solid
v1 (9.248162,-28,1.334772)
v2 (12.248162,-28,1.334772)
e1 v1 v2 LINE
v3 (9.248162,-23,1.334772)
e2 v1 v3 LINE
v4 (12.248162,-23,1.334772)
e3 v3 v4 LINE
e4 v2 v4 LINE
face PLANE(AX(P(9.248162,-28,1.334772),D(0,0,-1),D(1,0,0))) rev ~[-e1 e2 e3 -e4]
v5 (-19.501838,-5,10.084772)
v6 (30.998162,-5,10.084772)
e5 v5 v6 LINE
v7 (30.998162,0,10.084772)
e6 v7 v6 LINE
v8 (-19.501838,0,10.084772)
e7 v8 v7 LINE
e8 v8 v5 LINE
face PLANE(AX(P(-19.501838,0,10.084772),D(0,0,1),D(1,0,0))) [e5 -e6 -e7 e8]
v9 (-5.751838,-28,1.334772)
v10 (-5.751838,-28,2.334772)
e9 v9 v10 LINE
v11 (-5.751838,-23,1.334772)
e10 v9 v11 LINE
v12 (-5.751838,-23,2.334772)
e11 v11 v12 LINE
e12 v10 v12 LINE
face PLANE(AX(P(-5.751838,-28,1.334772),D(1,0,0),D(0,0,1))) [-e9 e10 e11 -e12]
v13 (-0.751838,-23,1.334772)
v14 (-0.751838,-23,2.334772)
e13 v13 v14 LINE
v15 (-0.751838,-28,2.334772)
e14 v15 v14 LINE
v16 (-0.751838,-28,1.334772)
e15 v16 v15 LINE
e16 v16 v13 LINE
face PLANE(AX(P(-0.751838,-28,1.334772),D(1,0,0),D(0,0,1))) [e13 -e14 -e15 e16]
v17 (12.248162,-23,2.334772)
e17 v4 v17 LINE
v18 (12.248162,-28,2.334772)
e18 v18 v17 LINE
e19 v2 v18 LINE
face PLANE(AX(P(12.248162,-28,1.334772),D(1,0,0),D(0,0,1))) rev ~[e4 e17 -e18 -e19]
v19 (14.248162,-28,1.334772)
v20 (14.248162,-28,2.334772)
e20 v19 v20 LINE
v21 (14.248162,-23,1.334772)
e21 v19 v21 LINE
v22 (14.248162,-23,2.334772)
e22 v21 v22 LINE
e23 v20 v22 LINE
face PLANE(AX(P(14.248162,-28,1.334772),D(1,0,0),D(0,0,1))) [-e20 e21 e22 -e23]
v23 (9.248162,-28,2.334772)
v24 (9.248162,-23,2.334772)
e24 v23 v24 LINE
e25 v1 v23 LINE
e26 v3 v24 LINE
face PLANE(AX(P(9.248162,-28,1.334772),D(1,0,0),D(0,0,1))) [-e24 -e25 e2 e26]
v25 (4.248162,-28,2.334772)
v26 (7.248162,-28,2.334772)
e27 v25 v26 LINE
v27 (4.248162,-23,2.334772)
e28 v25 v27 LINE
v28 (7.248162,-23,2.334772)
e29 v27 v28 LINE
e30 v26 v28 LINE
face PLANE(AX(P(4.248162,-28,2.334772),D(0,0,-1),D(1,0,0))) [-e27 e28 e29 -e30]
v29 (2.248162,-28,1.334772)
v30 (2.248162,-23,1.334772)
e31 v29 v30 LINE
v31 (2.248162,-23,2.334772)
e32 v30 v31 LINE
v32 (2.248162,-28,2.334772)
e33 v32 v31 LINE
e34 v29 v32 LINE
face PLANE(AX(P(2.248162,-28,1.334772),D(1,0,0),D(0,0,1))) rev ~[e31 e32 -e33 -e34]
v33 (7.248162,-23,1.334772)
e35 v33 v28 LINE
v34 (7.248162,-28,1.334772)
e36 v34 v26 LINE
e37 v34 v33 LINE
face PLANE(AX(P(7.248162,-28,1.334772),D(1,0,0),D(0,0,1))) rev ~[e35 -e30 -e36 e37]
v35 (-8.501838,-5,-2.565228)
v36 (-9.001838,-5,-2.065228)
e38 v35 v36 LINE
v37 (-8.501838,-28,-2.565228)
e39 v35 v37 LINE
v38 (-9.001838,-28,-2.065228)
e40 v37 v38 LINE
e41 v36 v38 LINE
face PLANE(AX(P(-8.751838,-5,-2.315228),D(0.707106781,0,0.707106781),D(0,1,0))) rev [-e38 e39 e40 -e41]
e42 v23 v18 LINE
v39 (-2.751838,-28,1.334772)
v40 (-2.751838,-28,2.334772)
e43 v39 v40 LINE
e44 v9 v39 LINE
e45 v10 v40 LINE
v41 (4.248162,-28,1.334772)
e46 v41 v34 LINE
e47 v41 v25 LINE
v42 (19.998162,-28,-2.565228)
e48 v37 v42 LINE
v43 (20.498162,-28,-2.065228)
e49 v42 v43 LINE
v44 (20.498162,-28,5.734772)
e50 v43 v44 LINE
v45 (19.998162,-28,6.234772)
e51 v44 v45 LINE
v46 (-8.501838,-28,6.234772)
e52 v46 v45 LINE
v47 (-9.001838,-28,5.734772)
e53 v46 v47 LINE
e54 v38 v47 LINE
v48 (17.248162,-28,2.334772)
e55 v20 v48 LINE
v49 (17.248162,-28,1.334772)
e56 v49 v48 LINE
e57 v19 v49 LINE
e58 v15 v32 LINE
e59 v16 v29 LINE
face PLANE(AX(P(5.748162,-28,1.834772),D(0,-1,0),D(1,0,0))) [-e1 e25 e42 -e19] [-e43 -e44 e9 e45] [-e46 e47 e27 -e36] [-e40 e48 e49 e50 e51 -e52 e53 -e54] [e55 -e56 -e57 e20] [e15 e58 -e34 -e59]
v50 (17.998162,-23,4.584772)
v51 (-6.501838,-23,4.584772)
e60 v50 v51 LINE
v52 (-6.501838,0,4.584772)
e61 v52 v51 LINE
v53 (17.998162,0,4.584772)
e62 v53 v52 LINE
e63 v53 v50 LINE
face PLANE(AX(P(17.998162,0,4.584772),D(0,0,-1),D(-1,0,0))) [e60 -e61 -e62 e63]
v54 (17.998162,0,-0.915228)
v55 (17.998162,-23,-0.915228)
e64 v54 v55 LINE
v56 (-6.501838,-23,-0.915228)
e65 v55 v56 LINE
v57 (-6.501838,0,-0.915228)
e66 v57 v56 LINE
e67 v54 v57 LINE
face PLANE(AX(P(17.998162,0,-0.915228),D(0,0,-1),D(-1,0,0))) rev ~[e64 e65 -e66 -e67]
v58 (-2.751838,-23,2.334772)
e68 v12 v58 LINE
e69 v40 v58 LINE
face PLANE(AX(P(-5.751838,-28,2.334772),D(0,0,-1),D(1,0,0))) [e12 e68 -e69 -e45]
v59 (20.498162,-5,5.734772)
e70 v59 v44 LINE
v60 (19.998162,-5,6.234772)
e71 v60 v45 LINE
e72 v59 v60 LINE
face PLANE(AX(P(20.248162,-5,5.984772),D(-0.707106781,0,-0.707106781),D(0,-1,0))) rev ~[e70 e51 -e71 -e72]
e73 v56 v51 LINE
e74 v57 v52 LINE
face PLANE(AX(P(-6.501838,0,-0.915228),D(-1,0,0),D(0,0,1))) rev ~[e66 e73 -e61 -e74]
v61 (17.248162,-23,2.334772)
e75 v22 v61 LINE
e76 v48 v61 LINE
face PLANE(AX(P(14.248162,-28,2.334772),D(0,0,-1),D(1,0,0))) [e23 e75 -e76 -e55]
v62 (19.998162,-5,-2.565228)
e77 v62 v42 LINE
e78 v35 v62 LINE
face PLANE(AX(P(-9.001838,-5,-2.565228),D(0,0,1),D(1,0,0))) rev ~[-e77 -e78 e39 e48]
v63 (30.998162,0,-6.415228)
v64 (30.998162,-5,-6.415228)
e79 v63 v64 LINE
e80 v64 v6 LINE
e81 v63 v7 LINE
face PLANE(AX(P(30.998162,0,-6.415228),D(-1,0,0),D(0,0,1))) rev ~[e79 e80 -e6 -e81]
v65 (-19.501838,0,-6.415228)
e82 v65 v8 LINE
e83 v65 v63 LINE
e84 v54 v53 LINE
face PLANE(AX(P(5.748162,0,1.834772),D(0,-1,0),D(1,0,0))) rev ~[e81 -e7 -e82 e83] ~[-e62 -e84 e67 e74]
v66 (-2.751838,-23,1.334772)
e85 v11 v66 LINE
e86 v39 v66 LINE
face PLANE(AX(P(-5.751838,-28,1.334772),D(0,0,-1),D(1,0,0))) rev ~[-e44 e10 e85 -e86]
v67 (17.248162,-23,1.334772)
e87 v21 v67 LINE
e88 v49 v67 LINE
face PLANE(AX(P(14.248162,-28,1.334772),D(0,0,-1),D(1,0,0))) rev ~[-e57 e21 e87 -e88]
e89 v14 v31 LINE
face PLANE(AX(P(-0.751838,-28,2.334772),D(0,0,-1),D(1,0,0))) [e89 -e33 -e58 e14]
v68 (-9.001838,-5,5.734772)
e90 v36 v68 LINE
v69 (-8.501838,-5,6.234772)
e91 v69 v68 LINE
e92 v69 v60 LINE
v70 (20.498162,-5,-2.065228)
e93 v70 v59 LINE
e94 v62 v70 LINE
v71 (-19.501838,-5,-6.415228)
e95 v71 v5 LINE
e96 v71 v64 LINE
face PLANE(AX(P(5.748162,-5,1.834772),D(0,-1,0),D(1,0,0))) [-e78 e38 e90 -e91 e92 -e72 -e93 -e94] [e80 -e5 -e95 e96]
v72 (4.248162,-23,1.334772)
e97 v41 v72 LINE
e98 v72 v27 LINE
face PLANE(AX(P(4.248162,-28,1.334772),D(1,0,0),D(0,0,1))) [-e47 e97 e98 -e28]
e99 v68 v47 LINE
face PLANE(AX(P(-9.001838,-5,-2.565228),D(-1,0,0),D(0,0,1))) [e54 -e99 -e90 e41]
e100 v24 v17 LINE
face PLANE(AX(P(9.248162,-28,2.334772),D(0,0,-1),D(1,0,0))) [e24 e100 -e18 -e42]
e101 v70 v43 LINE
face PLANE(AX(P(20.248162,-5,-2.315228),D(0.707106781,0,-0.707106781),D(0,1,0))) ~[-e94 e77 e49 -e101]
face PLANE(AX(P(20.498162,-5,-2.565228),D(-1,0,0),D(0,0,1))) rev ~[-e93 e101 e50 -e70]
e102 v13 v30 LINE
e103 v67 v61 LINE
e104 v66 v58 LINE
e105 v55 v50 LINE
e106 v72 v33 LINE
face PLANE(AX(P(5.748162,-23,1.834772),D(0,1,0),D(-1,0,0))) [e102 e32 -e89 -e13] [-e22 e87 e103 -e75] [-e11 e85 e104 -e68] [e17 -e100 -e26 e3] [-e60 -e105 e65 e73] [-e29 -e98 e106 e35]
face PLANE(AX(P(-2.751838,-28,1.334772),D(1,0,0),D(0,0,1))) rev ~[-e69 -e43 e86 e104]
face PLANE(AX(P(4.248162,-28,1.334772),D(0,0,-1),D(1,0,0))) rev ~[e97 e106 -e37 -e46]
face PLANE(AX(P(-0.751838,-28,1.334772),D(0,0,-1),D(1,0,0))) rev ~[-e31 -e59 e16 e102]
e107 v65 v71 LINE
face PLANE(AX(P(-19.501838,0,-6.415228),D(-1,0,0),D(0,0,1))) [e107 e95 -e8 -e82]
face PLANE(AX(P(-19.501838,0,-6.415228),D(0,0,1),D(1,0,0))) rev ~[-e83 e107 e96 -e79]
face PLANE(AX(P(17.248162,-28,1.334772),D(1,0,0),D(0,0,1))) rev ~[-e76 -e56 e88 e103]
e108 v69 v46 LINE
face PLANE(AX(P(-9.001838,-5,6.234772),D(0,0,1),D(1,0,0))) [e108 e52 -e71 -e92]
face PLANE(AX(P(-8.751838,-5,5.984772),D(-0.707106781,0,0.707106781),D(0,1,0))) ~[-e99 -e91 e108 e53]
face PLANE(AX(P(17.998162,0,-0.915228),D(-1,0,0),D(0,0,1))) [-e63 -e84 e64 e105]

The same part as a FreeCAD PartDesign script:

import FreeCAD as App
import Part
import Sketcher


def edges_at(feature, points):
    """Names of the edges that pass closest to the given points."""
    edges = feature.Shape.Edges
    near = lambda p: min(range(len(edges)), key=lambda i: edges[i].distToShape(Part.Vertex(*p))[0])
    return sorted({f"Edge{near(p) + 1}" for p in points})


def add_polygon(sketch, points):
    """Adds a closed chain of lines whose ends are joined by coincident constraints."""
    first, n = sketch.GeometryCount, len(points)
    for a, b in zip(points, points[1:] + points[:1]):
        sketch.addGeometry(Part.LineSegment(App.Vector(*a, 0), App.Vector(*b, 0)), False)
    for i in range(n):
        sketch.addConstraint(Sketcher.Constraint("Coincident", first + i, 2, first + (i + 1) % n, 1))

doc = App.newDocument("Part")
body = doc.addObject("PartDesign::Body", "Body")

# Sketch on XZ plane
sketch1 = body.newObject("Sketcher::SketchObject", "Sketch")
sketch1.AttachmentSupport = (doc.getObject("XZ_Plane"), [""])
sketch1.MapMode = "FlatFace"
add_polygon(sketch1, [(-20, 10), (-20, -6), (31, -6), (31, 10)])  # lines 0-3
sketch1.addConstraint(Sketcher.Constraint("Vertical", 0))
sketch1.addConstraint(Sketcher.Constraint("Horizontal", 1))
sketch1.addConstraint(Sketcher.Constraint("Vertical", 2))
sketch1.addConstraint(Sketcher.Constraint("Horizontal", 3))
sketch1.addConstraint(Sketcher.Constraint("DistanceX", 1, 1, 1, 2, 50.5))
sketch1.addConstraint(Sketcher.Constraint("DistanceY", 0, 2, 0, 1, 16.5))
sketch1.addConstraint(Sketcher.Constraint("DistanceY", -1, 1, 2, 2, 10.084772))
sketch1.addConstraint(Sketcher.Constraint("DistanceX", 0, 2, -1, 1, 19.501838))
pad1 = body.newObject("PartDesign::Pad", "Pad")
pad1.Profile = sketch1
pad1.Length = 5

# Sketch on XZ plane
sketch2 = body.newObject("Sketcher::SketchObject", "Sketch001")
sketch2.AttachmentSupport = (doc.getObject("XZ_Plane"), [""])
sketch2.MapMode = "FlatFace"
sketch2.AttachmentOffset = App.Placement(App.Vector(0, 0, 5), App.Rotation())
add_polygon(sketch2, [(-9, 6), (-9, -3), (20, -3), (20, 6)])  # lines 0-3
sketch2.addConstraint(Sketcher.Constraint("Vertical", 0))
sketch2.addConstraint(Sketcher.Constraint("Horizontal", 1))
sketch2.addConstraint(Sketcher.Constraint("Vertical", 2))
sketch2.addConstraint(Sketcher.Constraint("Horizontal", 3))
sketch2.addConstraint(Sketcher.Constraint("DistanceX", 1, 1, 1, 2, 29.5))
sketch2.addConstraint(Sketcher.Constraint("DistanceY", 0, 2, 0, 1, 8.8))
sketch2.addConstraint(Sketcher.Constraint("DistanceX", 0, 2, -1, 1, 9.001838))
sketch2.addConstraint(Sketcher.Constraint("DistanceY", 0, 2, -1, 1, 2.565228))
pad2 = body.newObject("PartDesign::Pad", "Pad001")
pad2.Profile = sketch2
pad2.Length = 23

# Sketch on XZ plane
sketch3 = body.newObject("Sketcher::SketchObject", "Sketch002")
sketch3.AttachmentSupport = (doc.getObject("XZ_Plane"), [""])
sketch3.MapMode = "FlatFace"
sketch3.AttachmentOffset = App.Placement(App.Vector(0, 0, 28), App.Rotation())
add_polygon(sketch3, [(-5.8, 2.3), (-5.8, 1.3), (-2.8, 1.3), (-2.8, 2.3)])  # lines 0-3
add_polygon(sketch3, [(-0.8, 2.3), (-0.8, 1.3), (2.2, 1.3), (2.2, 2.3)])  # lines 4-7
add_polygon(sketch3, [(4.2, 2.3), (4.2, 1.3), (7.2, 1.3), (7.2, 2.3)])  # lines 8-11
add_polygon(sketch3, [(9.2, 2.3), (9.2, 1.3), (12.2, 1.3), (12.2, 2.3)])  # lines 12-15
add_polygon(sketch3, [(14.2, 2.3), (14.2, 1.3), (17.2, 1.3), (17.2, 2.3)])  # lines 16-19
sketch3.addConstraint(Sketcher.Constraint("Vertical", 0))
sketch3.addConstraint(Sketcher.Constraint("Horizontal", 1))
sketch3.addConstraint(Sketcher.Constraint("Vertical", 2))
sketch3.addConstraint(Sketcher.Constraint("Horizontal", 3))
sketch3.addConstraint(Sketcher.Constraint("Vertical", 4))
sketch3.addConstraint(Sketcher.Constraint("Horizontal", 5))
sketch3.addConstraint(Sketcher.Constraint("Vertical", 6))
sketch3.addConstraint(Sketcher.Constraint("Horizontal", 7))
sketch3.addConstraint(Sketcher.Constraint("Vertical", 8))
sketch3.addConstraint(Sketcher.Constraint("Horizontal", 9))
sketch3.addConstraint(Sketcher.Constraint("Vertical", 10))
sketch3.addConstraint(Sketcher.Constraint("Horizontal", 11))
sketch3.addConstraint(Sketcher.Constraint("Vertical", 12))
sketch3.addConstraint(Sketcher.Constraint("Horizontal", 13))
sketch3.addConstraint(Sketcher.Constraint("Vertical", 14))
sketch3.addConstraint(Sketcher.Constraint("Horizontal", 15))
sketch3.addConstraint(Sketcher.Constraint("Vertical", 16))
sketch3.addConstraint(Sketcher.Constraint("Horizontal", 17))
sketch3.addConstraint(Sketcher.Constraint("Vertical", 18))
sketch3.addConstraint(Sketcher.Constraint("Horizontal", 19))
sketch3.addConstraint(Sketcher.Constraint("Horizontal", 1, 2, 4, 2))
sketch3.addConstraint(Sketcher.Constraint("Horizontal", 3, 2, 6, 2))
sketch3.addConstraint(Sketcher.Constraint("Horizontal", 5, 2, 8, 2))
sketch3.addConstraint(Sketcher.Constraint("Horizontal", 7, 2, 10, 2))
sketch3.addConstraint(Sketcher.Constraint("Horizontal", 9, 2, 12, 2))
sketch3.addConstraint(Sketcher.Constraint("Horizontal", 11, 2, 14, 2))
sketch3.addConstraint(Sketcher.Constraint("Horizontal", 13, 2, 16, 2))
sketch3.addConstraint(Sketcher.Constraint("Horizontal", 15, 2, 18, 2))
sketch3.addConstraint(Sketcher.Constraint("Equal", 3, 5))
sketch3.addConstraint(Sketcher.Constraint("Equal", 7, 9))
sketch3.addConstraint(Sketcher.Constraint("Equal", 11, 13))
sketch3.addConstraint(Sketcher.Constraint("Equal", 15, 17))
sketch3.addConstraint(Sketcher.Constraint("DistanceX", 1, 1, 1, 2, 3.0))
sketch3.addConstraint(Sketcher.Constraint("DistanceY", 0, 2, 0, 1, 1.0))
sketch3.addConstraint(Sketcher.Constraint("DistanceX", 1, 2, 4, 2, 2.0))
sketch3.addConstraint(Sketcher.Constraint("DistanceX", 5, 2, 8, 2, 2.0))
sketch3.addConstraint(Sketcher.Constraint("DistanceX", 9, 2, 12, 2, 2.0))
sketch3.addConstraint(Sketcher.Constraint("DistanceX", 13, 2, 16, 2, 2.0))
sketch3.addConstraint(Sketcher.Constraint("DistanceX", 0, 2, -1, 1, 5.751838))
sketch3.addConstraint(Sketcher.Constraint("DistanceY", -1, 1, 0, 2, 1.334772))
pocket1 = body.newObject("PartDesign::Pocket", "Pocket")
pocket1.Profile = sketch3
pocket1.Length = 28
doc.recompute()

chamfer = body.newObject("PartDesign::Chamfer", "Chamfer")
chamfer.Base = (pocket1, edges_at(pocket1, [
    (20.498, -16.5, 6.235),
    (-9.002, -16.5, 6.235),
    (20.498, -16.5, -2.565),
    (-9.002, -16.5, -2.565),
]))
chamfer.Size = 0.5

# Sketch on XZ plane
sketch4 = body.newObject("Sketcher::SketchObject", "Sketch003")
sketch4.AttachmentSupport = (doc.getObject("XZ_Plane"), [""])
sketch4.MapMode = "FlatFace"
add_polygon(sketch4, [(18, 5), (18, -1), (-7, -1), (-7, 5)])  # lines 0-3
sketch4.addConstraint(Sketcher.Constraint("Vertical", 0))
sketch4.addConstraint(Sketcher.Constraint("Horizontal", 1))
sketch4.addConstraint(Sketcher.Constraint("Vertical", 2))
sketch4.addConstraint(Sketcher.Constraint("Horizontal", 3))
sketch4.addConstraint(Sketcher.Constraint("DistanceX", 1, 2, 1, 1, 24.5))
sketch4.addConstraint(Sketcher.Constraint("DistanceY", 0, 2, 0, 1, 5.5))
sketch4.addConstraint(Sketcher.Constraint("DistanceY", 0, 2, -1, 1, 0.915228))
sketch4.addConstraint(Sketcher.Constraint("DistanceX", 1, 2, -1, 1, 6.501838))
pocket2 = body.newObject("PartDesign::Pocket", "Pocket001")
pocket2.Profile = sketch4
pocket2.Length = 23
pocket2.Reversed = True

doc.recompute()
